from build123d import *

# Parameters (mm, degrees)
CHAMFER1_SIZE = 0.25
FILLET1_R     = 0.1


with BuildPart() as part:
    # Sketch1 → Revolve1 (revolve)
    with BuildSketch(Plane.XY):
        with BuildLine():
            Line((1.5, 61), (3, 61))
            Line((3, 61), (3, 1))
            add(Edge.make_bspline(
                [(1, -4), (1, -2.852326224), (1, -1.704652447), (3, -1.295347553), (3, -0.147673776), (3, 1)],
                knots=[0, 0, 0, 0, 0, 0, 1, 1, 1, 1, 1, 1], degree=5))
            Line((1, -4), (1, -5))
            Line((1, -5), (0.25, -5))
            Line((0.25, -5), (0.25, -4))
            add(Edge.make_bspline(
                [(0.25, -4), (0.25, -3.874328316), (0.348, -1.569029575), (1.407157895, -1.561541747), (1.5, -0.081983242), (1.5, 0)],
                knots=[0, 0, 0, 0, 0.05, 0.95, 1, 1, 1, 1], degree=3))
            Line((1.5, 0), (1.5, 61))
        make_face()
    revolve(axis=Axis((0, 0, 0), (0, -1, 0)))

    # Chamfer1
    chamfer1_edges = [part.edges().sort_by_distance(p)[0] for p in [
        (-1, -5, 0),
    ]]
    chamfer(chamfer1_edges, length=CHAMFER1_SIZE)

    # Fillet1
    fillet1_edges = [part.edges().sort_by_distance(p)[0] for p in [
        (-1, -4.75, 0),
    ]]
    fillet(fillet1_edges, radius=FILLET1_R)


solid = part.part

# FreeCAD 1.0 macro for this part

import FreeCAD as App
import Part
import Sketcher
Q = App.Units.Quantity


def edges_at(feature, points):
    """Names of the edges that pass closest to the given points."""
    edges = feature.Shape.Edges
    near = lambda p: min(range(len(edges)), key=lambda i: edges[i].distToShape(Part.Vertex(*p))[0])
    return sorted({f"Edge{near(p) + 1}" for p in points})

doc = App.newDocument("Part")
body = doc.addObject("PartDesign::Body", "Body")

sketch1 = body.newObject("Sketcher::SketchObject", "Sketch")
sketch1.AttachmentSupport = (doc.getObject("XY_Plane"), [""])
sketch1.MapMode = "FlatFace"
sketch1.addGeometry(Part.LineSegment(App.Vector(3, 61, 0), App.Vector(1.5, 61, 0)), False)
sketch1.addGeometry(Part.LineSegment(App.Vector(1.5, 61, 0), App.Vector(1.5, 0, 0)), False)
sketch1.addGeometry(Part.BSplineCurve([App.Vector(0.25, -4, 0), App.Vector(0.25, -3.874328, 0), App.Vector(0.348, -1.56903, 0), App.Vector(1.407158, -1.561542, 0), App.Vector(1.5, -0.081983, 0), App.Vector(1.5, 0, 0)], [4, 1, 1, 4], [0, 0.05, 0.95, 1], False, 3, [1, 1, 1, 1, 1, 1], False), False)
sketch1.addGeometry(Part.LineSegment(App.Vector(0.25, -4, 0), App.Vector(0.25, -5, 0)), False)
sketch1.addGeometry(Part.LineSegment(App.Vector(0.25, -5, 0), App.Vector(1, -5, 0)), False)
sketch1.addGeometry(Part.LineSegment(App.Vector(1, -5, 0), App.Vector(1, -4, 0)), False)
sketch1.addGeometry(Part.BSplineCurve([App.Vector(1, -4, 0), App.Vector(1, -2.852326, 0), App.Vector(1, -1.704652, 0), App.Vector(3, -1.295348, 0), App.Vector(3, -0.147674, 0), App.Vector(3, 1, 0)], [6, 6], [0, 1], False, 5, [1, 1, 1, 1, 1, 1], False), False)
sketch1.addGeometry(Part.LineSegment(App.Vector(3, 1, 0), App.Vector(3, 61, 0)), False)
sketch1.addConstraint(Sketcher.Constraint("Block", 2))
sketch1.addConstraint(Sketcher.Constraint("Block", 6))
sketch1.addConstraint(Sketcher.Constraint("Coincident", 0, 2, 1, 1))
sketch1.addConstraint(Sketcher.Constraint("Coincident", 1, 2, 2, 2))
sketch1.addConstraint(Sketcher.Constraint("Coincident", 2, 1, 3, 1))
sketch1.addConstraint(Sketcher.Constraint("Coincident", 3, 2, 4, 1))
sketch1.addConstraint(Sketcher.Constraint("Coincident", 4, 2, 5, 1))
sketch1.addConstraint(Sketcher.Constraint("Coincident", 5, 2, 6, 1))
sketch1.addConstraint(Sketcher.Constraint("Coincident", 6, 2, 7, 1))
sketch1.addConstraint(Sketcher.Constraint("Coincident", 7, 2, 0, 1))
sketch1.addConstraint(Sketcher.Constraint("Horizontal", 0))
sketch1.addConstraint(Sketcher.Constraint("Vertical", 1))
sketch1.addConstraint(Sketcher.Constraint("Vertical", 3))
sketch1.addConstraint(Sketcher.Constraint("Horizontal", 4))
sketch1.addConstraint(Sketcher.Constraint("Vertical", 5))
sketch1.addConstraint(Sketcher.Constraint("Vertical", 7))
sketch1.addConstraint(Sketcher.Constraint("DistanceY", 1, 2, 1, 1, Q("61 mm")))
sketch1.addConstraint(Sketcher.Constraint("DistanceY", 3, 2, 3, 1, Q("1 mm")))
revolution = body.newObject("PartDesign::Revolution", "Revolution")
revolution.Profile = sketch1
revolution.ReferenceAxis = (sketch1, ["V_Axis"])
revolution.Angle = 360
doc.recompute()

chamfer = body.newObject("PartDesign::Chamfer", "Chamfer")
chamfer.Base = (revolution, edges_at(revolution, [(-1, -5, 0)]))
chamfer.Size = 0.25
doc.recompute()

fillet = body.newObject("PartDesign::Fillet", "Fillet")
fillet.Base = (chamfer, edges_at(chamfer, [(-1, -4.75, 0)]))
fillet.Radius = 0.1

doc.recompute()
